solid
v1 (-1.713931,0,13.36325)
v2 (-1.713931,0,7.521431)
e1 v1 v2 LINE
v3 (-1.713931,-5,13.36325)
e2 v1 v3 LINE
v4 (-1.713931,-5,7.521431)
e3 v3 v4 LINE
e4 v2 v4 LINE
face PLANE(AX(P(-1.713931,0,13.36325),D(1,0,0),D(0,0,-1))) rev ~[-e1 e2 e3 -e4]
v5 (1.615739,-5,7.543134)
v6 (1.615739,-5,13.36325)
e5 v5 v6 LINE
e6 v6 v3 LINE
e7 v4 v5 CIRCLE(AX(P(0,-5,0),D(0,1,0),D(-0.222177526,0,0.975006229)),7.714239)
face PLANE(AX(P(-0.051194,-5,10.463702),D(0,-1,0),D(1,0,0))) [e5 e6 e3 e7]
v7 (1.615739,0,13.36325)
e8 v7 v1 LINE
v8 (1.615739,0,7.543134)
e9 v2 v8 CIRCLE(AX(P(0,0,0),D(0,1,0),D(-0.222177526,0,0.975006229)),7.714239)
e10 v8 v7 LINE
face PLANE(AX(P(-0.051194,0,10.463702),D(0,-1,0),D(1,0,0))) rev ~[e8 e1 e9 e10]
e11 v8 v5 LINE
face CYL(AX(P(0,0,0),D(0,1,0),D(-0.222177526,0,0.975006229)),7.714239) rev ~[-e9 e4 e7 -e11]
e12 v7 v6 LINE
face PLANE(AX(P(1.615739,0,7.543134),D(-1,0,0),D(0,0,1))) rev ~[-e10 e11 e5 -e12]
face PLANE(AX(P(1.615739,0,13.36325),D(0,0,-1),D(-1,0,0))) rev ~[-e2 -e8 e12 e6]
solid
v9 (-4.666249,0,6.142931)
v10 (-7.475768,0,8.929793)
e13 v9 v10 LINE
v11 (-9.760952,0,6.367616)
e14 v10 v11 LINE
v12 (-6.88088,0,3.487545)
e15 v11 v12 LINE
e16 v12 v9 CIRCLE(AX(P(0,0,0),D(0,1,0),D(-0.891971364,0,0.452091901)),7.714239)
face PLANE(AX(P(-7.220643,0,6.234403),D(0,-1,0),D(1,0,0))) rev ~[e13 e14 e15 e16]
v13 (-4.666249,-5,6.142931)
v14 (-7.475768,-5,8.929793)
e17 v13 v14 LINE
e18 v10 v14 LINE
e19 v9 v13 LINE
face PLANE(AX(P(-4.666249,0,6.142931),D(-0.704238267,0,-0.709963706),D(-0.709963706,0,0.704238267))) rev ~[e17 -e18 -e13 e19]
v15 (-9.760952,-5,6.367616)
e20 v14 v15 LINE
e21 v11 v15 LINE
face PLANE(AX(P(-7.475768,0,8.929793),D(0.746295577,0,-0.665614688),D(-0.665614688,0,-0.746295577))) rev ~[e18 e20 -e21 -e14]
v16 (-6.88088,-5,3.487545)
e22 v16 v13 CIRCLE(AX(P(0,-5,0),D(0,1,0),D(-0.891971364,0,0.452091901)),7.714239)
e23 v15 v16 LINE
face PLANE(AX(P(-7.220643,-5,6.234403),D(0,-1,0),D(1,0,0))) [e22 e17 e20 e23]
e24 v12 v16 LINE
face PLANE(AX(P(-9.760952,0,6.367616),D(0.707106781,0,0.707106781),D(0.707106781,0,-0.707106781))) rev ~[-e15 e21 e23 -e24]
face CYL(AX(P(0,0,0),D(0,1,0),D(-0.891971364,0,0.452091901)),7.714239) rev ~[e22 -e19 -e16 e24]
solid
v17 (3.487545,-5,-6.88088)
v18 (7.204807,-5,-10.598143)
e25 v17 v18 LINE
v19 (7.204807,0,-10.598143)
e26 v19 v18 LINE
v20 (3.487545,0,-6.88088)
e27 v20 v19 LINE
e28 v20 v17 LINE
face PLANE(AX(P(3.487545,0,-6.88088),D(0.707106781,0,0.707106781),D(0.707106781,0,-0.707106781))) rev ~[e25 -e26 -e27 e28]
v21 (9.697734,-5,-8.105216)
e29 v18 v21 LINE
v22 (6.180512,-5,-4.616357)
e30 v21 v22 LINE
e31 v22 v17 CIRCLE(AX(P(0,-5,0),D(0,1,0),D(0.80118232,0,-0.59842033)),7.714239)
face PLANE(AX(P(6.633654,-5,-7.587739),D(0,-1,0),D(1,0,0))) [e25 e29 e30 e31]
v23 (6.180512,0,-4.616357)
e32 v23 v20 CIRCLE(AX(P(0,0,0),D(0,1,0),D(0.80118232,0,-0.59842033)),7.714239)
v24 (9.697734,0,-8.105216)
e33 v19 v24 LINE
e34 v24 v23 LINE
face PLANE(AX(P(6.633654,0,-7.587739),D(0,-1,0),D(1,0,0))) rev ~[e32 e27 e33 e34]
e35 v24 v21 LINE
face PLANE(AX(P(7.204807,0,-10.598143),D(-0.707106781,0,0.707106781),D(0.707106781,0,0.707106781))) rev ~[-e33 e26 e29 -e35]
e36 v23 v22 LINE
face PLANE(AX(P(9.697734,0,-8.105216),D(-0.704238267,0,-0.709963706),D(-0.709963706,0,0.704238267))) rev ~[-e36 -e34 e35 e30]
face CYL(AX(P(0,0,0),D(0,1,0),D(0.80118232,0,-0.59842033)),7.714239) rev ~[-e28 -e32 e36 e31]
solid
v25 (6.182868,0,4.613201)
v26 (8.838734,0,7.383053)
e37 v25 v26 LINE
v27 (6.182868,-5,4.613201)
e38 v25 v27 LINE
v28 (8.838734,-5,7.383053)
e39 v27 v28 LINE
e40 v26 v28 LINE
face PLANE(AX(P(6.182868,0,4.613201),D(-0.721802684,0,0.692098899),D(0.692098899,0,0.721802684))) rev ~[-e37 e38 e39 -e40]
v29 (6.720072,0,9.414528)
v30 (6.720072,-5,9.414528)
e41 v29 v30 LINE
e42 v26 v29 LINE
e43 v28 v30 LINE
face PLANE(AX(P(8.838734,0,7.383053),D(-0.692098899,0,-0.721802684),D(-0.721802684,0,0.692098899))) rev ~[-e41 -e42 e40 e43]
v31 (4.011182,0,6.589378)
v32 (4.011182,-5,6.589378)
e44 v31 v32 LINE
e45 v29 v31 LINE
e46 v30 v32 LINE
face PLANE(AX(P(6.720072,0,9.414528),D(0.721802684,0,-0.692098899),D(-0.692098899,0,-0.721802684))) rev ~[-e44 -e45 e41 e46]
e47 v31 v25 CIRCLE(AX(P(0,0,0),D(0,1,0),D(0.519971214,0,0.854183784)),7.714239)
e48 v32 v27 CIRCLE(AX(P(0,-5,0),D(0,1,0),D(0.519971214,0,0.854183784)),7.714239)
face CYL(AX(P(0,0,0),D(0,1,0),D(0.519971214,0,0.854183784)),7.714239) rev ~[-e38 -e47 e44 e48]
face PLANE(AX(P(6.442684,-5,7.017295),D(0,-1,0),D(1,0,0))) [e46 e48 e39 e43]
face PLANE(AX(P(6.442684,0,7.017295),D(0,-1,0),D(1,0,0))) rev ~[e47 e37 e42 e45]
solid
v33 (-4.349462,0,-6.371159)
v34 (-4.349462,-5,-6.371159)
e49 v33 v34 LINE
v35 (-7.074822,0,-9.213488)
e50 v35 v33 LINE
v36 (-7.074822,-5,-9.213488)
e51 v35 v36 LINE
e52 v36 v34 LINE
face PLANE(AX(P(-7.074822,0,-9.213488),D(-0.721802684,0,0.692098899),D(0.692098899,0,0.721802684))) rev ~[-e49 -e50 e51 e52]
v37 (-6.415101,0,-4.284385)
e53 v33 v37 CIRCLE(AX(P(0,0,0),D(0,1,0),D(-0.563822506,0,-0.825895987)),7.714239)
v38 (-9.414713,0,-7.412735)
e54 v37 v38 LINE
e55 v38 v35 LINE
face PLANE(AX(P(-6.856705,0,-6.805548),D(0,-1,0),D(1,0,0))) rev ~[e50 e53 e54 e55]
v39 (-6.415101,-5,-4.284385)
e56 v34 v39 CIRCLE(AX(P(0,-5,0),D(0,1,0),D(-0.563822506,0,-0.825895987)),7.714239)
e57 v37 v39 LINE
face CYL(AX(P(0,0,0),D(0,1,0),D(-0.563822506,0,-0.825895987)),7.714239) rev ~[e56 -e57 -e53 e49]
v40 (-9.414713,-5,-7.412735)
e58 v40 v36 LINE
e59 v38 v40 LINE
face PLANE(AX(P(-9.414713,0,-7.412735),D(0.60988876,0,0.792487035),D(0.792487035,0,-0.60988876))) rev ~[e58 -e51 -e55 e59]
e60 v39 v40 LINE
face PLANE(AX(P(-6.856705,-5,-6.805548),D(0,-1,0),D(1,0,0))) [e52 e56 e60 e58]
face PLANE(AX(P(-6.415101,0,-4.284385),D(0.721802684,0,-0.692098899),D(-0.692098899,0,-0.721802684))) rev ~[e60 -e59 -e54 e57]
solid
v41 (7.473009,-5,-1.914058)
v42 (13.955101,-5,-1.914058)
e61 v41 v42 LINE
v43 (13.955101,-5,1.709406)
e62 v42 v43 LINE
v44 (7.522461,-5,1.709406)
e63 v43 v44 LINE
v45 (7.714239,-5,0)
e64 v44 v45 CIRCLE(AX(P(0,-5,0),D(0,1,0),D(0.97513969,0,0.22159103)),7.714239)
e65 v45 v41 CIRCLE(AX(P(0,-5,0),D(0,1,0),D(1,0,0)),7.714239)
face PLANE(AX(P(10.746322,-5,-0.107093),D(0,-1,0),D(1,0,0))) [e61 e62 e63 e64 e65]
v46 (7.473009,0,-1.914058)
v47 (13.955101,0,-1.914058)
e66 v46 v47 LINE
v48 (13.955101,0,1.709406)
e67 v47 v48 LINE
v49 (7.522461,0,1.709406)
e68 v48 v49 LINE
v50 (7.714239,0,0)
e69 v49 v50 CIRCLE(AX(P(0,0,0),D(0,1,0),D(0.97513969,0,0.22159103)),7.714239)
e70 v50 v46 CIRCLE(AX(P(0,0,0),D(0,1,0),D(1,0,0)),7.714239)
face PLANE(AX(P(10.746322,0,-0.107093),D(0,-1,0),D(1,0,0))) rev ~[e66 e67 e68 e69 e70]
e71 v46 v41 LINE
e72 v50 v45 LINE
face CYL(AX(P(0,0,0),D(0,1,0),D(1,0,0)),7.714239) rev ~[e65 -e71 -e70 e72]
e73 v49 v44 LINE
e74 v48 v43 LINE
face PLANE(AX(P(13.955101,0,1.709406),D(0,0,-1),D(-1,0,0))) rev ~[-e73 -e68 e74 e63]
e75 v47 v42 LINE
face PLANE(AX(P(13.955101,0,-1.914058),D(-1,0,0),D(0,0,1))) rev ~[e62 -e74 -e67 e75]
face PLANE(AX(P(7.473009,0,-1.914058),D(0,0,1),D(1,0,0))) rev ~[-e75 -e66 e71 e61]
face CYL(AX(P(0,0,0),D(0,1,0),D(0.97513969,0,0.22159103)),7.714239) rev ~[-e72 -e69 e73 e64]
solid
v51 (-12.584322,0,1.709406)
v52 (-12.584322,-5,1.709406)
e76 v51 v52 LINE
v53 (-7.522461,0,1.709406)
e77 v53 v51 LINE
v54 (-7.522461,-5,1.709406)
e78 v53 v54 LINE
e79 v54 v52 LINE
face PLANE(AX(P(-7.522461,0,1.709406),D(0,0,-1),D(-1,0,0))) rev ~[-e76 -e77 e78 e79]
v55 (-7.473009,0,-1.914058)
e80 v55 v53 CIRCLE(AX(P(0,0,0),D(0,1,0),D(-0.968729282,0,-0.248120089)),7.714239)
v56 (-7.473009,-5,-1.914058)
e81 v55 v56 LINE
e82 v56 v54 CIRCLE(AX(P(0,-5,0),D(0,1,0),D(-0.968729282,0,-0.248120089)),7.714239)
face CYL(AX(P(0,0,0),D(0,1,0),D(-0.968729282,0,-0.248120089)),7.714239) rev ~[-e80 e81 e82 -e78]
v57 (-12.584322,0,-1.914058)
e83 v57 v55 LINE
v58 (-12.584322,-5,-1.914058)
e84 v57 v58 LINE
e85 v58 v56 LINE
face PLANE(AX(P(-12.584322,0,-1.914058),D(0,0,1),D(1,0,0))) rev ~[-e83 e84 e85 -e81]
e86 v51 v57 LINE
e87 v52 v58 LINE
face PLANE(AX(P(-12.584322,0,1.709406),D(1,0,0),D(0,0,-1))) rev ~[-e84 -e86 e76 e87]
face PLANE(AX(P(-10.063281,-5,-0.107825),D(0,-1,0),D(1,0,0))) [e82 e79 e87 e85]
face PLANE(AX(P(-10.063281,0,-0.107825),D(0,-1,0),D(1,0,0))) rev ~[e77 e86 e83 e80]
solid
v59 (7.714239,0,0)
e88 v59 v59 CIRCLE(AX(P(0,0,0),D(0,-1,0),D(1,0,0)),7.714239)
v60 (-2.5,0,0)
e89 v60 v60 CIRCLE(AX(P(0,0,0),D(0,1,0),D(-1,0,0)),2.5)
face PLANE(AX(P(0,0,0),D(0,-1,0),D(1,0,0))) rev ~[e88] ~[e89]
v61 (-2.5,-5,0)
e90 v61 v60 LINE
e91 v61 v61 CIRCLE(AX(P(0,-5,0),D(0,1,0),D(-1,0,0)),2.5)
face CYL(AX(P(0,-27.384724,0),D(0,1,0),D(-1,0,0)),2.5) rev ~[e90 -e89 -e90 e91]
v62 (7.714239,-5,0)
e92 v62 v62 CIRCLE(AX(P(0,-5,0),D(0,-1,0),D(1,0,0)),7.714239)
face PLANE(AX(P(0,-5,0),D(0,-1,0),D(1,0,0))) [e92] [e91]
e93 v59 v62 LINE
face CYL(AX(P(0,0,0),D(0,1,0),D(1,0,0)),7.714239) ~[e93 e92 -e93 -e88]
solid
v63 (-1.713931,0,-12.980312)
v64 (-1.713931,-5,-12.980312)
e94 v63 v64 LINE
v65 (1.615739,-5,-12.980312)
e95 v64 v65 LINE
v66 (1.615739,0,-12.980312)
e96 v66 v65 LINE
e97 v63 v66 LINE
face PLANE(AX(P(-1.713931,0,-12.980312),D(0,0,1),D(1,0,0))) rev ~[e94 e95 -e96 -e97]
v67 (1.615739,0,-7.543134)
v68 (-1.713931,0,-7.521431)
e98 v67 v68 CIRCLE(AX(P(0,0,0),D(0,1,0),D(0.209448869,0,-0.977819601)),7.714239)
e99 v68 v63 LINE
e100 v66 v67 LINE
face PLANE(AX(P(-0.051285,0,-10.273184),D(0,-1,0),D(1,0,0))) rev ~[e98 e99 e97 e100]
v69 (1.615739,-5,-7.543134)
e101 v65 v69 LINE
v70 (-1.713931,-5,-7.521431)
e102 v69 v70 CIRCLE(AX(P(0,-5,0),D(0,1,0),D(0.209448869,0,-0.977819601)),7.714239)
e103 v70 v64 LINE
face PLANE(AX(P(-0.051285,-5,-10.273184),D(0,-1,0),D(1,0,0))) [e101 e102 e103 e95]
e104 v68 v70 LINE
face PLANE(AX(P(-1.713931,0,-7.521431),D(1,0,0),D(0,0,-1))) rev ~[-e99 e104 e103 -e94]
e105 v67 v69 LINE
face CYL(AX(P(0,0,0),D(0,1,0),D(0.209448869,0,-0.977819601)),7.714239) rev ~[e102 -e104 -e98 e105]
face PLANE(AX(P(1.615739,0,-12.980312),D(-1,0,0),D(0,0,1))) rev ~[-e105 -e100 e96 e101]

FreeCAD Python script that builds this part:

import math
import FreeCAD as App
import Part
import Sketcher
Q = App.Units.Quantity

doc = App.newDocument("Part")
body = doc.addObject("PartDesign::Body", "Body")

# Sketch on XZ plane
sketch1 = body.newObject("Sketcher::SketchObject", "Sketch")
sketch1.AttachmentSupport = (doc.getObject("XZ_Plane"), [""])
sketch1.MapMode = "FlatFace"
sketch1.addGeometry(Part.Circle(App.Vector(0, 0, 0), App.Vector(0, 0, 1), 8), False)
sketch1.addConstraint([
    Sketcher.Constraint("Coincident", 0, 3, -1, 1),
    Sketcher.Constraint("Diameter", 0, 15.428478),
])
pad1 = body.newObject("PartDesign::Pad", "Pad")
pad1.Profile = sketch1
pad1.Length = 5

# Sketch on XZ plane
sketch2 = body.newObject("Sketcher::SketchObject", "Sketch001")
sketch2.AttachmentSupport = (doc.getObject("XZ_Plane"), [""])
sketch2.MapMode = "FlatFace"
sketch2.AttachmentOffset = App.Placement(App.Vector(0, 0, 5), App.Rotation())
sketch2.addGeometry(Part.Circle(App.Vector(0, 0, 0), App.Vector(0, 0, 1), 2.5), False)
sketch2.addConstraint([
    Sketcher.Constraint("Coincident", 0, 3, -1, 1),
    Sketcher.Constraint("Diameter", 0, 5.0),
])
doc.recompute()
hole = body.newObject("PartDesign::Hole", "Hole")
hole.Profile = sketch2
hole.ThreadType = "None"
hole.Diameter = 5
hole.DepthType = "ThroughAll"
body2 = doc.addObject("PartDesign::Body", "Body001")

# Sketch on XZ plane
sketch3 = body2.newObject("Sketcher::SketchObject", "Sketch002")
sketch3.AttachmentSupport = (doc.getObject("XZ_Plane001"), [""])
sketch3.MapMode = "FlatFace"
sketch3.addGeometry([
    Part.LineSegment(App.Vector(-6.4, -4.3, 0), App.Vector(-9.4, -7.4, 0)),
    Part.LineSegment(App.Vector(-9.4, -7.4, 0), App.Vector(-7.1, -9.2, 0)),
    Part.LineSegment(App.Vector(-7.1, -9.2, 0), App.Vector(-4.3, -6.4, 0)),
    Part.ArcOfCircle(Part.Circle(App.Vector(0, 0, 0), App.Vector(0, 0, 1), 7.7), math.radians(-146), math.radians(-124)),
], False)
sketch3.addConstraint([
    Sketcher.Constraint("Coincident", 0, 2, 1, 1),
    Sketcher.Constraint("Coincident", 1, 2, 2, 1),
    Sketcher.Constraint("Coincident", 2, 2, 3, 2),
    Sketcher.Constraint("Coincident", 3, 1, 0, 1),
    Sketcher.Constraint("Coincident", 3, 3, -1, 1),
    Sketcher.Constraint("Parallel", 0, 2),
    Sketcher.Constraint("Radius", 3, 7.714239),
    Sketcher.Constraint("DistanceX", 3, 1, -1, 1, 6.415101),
    Sketcher.Constraint("Distance", 0, 4.334079),
    Sketcher.Constraint("Distance", 1, 2.952592),
    Sketcher.Constraint("Distance", 2, 3.93782),
    Sketcher.Constraint("DistanceX", 2, 2, -1, 1, 4.349462),
])
pad2 = body2.newObject("PartDesign::Pad", "Pad001")
pad2.Profile = sketch3
pad2.Length = 5
body3 = doc.addObject("PartDesign::Body", "Body002")

# Sketch on XZ plane
sketch4 = body3.newObject("Sketcher::SketchObject", "Sketch003")
sketch4.AttachmentSupport = (doc.getObject("XZ_Plane002"), [""])
sketch4.MapMode = "FlatFace"
sketch4.addGeometry([
    Part.LineSegment(App.Vector(6.7, 9.4, 0), App.Vector(4, 6.6, 0)),
    Part.ArcOfCircle(Part.Circle(App.Vector(0, 0, 0), App.Vector(0, 0, 1), 7.7), math.radians(37), math.radians(59)),
    Part.LineSegment(App.Vector(6.2, 4.6, 0), App.Vector(8.8, 7.4, 0)),
    Part.LineSegment(App.Vector(8.8, 7.4, 0), App.Vector(6.7, 9.4, 0)),
], False)
sketch4.addConstraint([
    Sketcher.Constraint("Coincident", 0, 2, 1, 2),
    Sketcher.Constraint("Coincident", 1, 1, 2, 1),
    Sketcher.Constraint("Coincident", 2, 2, 3, 1),
    Sketcher.Constraint("Coincident", 3, 2, 0, 1),
    Sketcher.Constraint("Coincident", 1, 3, -1, 1),
    Sketcher.Constraint("Parallel", 0, 2),
    Sketcher.Constraint("Perpendicular", 2, 3),
    Sketcher.Constraint("Radius", 1, 7.714239),
    Sketcher.Constraint("DistanceY", -1, 1, 1, 1, 4.613201),
    Sketcher.Constraint("Distance", 0, 3.914021),
    Sketcher.Constraint("Distance", 2, 3.837409),
    Sketcher.Constraint("Distance", 3, 2.935238),
])
pad3 = body3.newObject("PartDesign::Pad", "Pad002")
pad3.Profile = sketch4
pad3.Length = 5
body4 = doc.addObject("PartDesign::Body", "Body003")

# Sketch on XZ plane
sketch5 = body4.newObject("Sketcher::SketchObject", "Sketch004")
sketch5.AttachmentSupport = (doc.getObject("XZ_Plane003"), [""])
sketch5.MapMode = "FlatFace"
sketch5.addGeometry([
    Part.LineSegment(App.Vector(-7.5, 1.7, 0), App.Vector(-12.6, 1.7, 0)),
    Part.LineSegment(App.Vector(-12.6, 1.7, 0), App.Vector(-12.6, -1.9, 0)),
    Part.LineSegment(App.Vector(-12.6, -1.9, 0), App.Vector(-7.5, -1.9, 0)),
    Part.ArcOfCircle(Part.Circle(App.Vector(0, 0, 0), App.Vector(0, 0, 1), 7.7), math.radians(167), math.radians(194)),
], False)
sketch5.addConstraint([
    Sketcher.Constraint("Coincident", 0, 2, 1, 1),
    Sketcher.Constraint("Coincident", 1, 2, 2, 1),
    Sketcher.Constraint("Coincident", 2, 2, 3, 2),
    Sketcher.Constraint("Coincident", 3, 1, 0, 1),
    Sketcher.Constraint("Horizontal", 0),
    Sketcher.Constraint("Vertical", 1),
    Sketcher.Constraint("Horizontal", 2),
    Sketcher.Constraint("Coincident", 3, 3, -1, 1),
    Sketcher.Constraint("Radius", 3, 7.714239),
    Sketcher.Constraint("DistanceX", 0, 2, 0, 1, 5.061862),
    Sketcher.Constraint("DistanceX", 2, 1, 2, 2, 5.111313),
    Sketcher.Constraint("DistanceY", 1, 2, 1, 1, 3.623464),
])
pad4 = body4.newObject("PartDesign::Pad", "Pad003")
pad4.Profile = sketch5
pad4.Length = 5
body5 = doc.addObject("PartDesign::Body", "Body004")

# Sketch on XZ plane
sketch6 = body5.newObject("Sketcher::SketchObject", "Sketch005")
sketch6.AttachmentSupport = (doc.getObject("XZ_Plane004"), [""])
sketch6.MapMode = "FlatFace"
sketch6.addGeometry([
    Part.LineSegment(App.Vector(14, 1.7, 0), App.Vector(7.5, 1.7, 0)),  # 0
    Part.ArcOfCircle(Part.Circle(App.Vector(0, 0, 0), App.Vector(0, 0, 1), 7.7), math.radians(0), math.radians(12.8)),  # 1
    Part.ArcOfCircle(Part.Circle(App.Vector(0, 0, 0), App.Vector(0, 0, 1), 7.7), math.radians(-14.37), math.radians(0)),  # 2
    Part.LineSegment(App.Vector(7.5, -1.9, 0), App.Vector(14, -1.9, 0)),  # 3
    Part.LineSegment(App.Vector(14, -1.9, 0), App.Vector(14, 1.7, 0)),  # 4
], False)
sketch6.addConstraint([
    Sketcher.Constraint("Coincident", 0, 2, 1, 2),
    Sketcher.Constraint("Tangent", 1, 1, 2, 2),
    Sketcher.Constraint("Coincident", 2, 1, 3, 1),
    Sketcher.Constraint("Coincident", 3, 2, 4, 1),
    Sketcher.Constraint("Coincident", 4, 2, 0, 1),
    Sketcher.Constraint("Horizontal", 0),
    Sketcher.Constraint("Horizontal", 3),
    Sketcher.Constraint("Vertical", 4),
    Sketcher.Constraint("Coincident", 1, 3, -1, 1),
    Sketcher.Constraint("Equal", 1, 2),
    Sketcher.Constraint("PointOnObject", 1, 1, -1),
    Sketcher.Constraint("Radius", 1, 7.714239),
    Sketcher.Constraint("DistanceX", 0, 2, 0, 1, 6.432641),
    Sketcher.Constraint("DistanceX", -1, 1, 3, 2, 13.955101),
    Sketcher.Constraint("DistanceX", 3, 1, 3, 2, 6.482092),
])
pad5 = body5.newObject("PartDesign::Pad", "Pad004")
pad5.Profile = sketch6
pad5.Length = 5
body6 = doc.addObject("PartDesign::Body", "Body005")

# Sketch on XZ plane
sketch7 = body6.newObject("Sketcher::SketchObject", "Sketch006")
sketch7.AttachmentSupport = (doc.getObject("XZ_Plane005"), [""])
sketch7.MapMode = "FlatFace"
sketch7.addGeometry([
    Part.LineSegment(App.Vector(-7.5, 8.9, 0), App.Vector(-9.8, 6.4, 0)),
    Part.LineSegment(App.Vector(-9.8, 6.4, 0), App.Vector(-6.9, 3.5, 0)),
    Part.ArcOfCircle(Part.Circle(App.Vector(0, 0, 0), App.Vector(0, 0, 1), 7.7), math.radians(127), math.radians(153)),
    Part.LineSegment(App.Vector(-4.7, 6.1, 0), App.Vector(-7.5, 8.9, 0)),
], False)
sketch7.addConstraint([
    Sketcher.Constraint("Coincident", 0, 2, 1, 1),
    Sketcher.Constraint("Coincident", 1, 2, 2, 2),
    Sketcher.Constraint("Coincident", 2, 1, 3, 1),
    Sketcher.Constraint("Coincident", 3, 2, 0, 1),
    Sketcher.Constraint("Coincident", 2, 3, -1, 1),
    Sketcher.Constraint("Angle", 1, Q("-45 deg")),
    Sketcher.Constraint("Radius", 2, 7.714239),
    Sketcher.Constraint("Distance", 3, 3.957271),
    Sketcher.Constraint("DistanceX", 0, 2, -1, 1, 9.760952),
    Sketcher.Constraint("DistanceX", 1, 2, -1, 1, 6.88088),
    Sketcher.Constraint("DistanceX", 2, 1, -1, 1, 4.666249),
    Sketcher.Constraint("DistanceX", 3, 2, -1, 1, 7.475768),
])
pad6 = body6.newObject("PartDesign::Pad", "Pad005")
pad6.Profile = sketch7
pad6.Length = 5
body7 = doc.addObject("PartDesign::Body", "Body006")

# Sketch on XZ plane
sketch8 = body7.newObject("Sketcher::SketchObject", "Sketch007")
sketch8.AttachmentSupport = (doc.getObject("XZ_Plane006"), [""])
sketch8.MapMode = "FlatFace"
sketch8.addGeometry([
    Part.ArcOfCircle(Part.Circle(App.Vector(0, 0, 0), App.Vector(0, 0, 1), 7.7), math.radians(-63), math.radians(-37)),
    Part.LineSegment(App.Vector(3.5, -6.9, 0), App.Vector(7.2, -10.6, 0)),
    Part.LineSegment(App.Vector(7.2, -10.6, 0), App.Vector(9.7, -8.1, 0)),
    Part.LineSegment(App.Vector(9.7, -8.1, 0), App.Vector(6.2, -4.6, 0)),
], False)
sketch8.addConstraint([
    Sketcher.Constraint("Coincident", 0, 1, 1, 1),
    Sketcher.Constraint("Coincident", 1, 2, 2, 1),
    Sketcher.Constraint("Coincident", 2, 2, 3, 1),
    Sketcher.Constraint("Coincident", 3, 2, 0, 2),
    Sketcher.Constraint("Coincident", 0, 3, -1, 1),
    Sketcher.Constraint("Perpendicular", 1, 2),
    Sketcher.Constraint("Angle", 1, Q("-45 deg")),
    Sketcher.Constraint("Radius", 0, 7.714239),
    Sketcher.Constraint("Distance", 2, 3.525531),
    Sketcher.Constraint("DistanceY", 0, 1, -1, 1, 6.88088),
    Sketcher.Constraint("DistanceX", -1, 1, 3, 2, 6.180512),
    Sketcher.Constraint("DistanceX", 0, 1, 2, 2, 6.210189),
])
pad7 = body7.newObject("PartDesign::Pad", "Pad006")
pad7.Profile = sketch8
pad7.Length = 5
body8 = doc.addObject("PartDesign::Body", "Body007")

# Sketch on XZ plane
sketch9 = body8.newObject("Sketcher::SketchObject", "Sketch008")
sketch9.AttachmentSupport = (doc.getObject("XZ_Plane007"), [""])
sketch9.MapMode = "FlatFace"
sketch9.addGeometry([
    Part.LineSegment(App.Vector(1.6, 13.4, 0), App.Vector(-1.7, 13.4, 0)),
    Part.LineSegment(App.Vector(-1.7, 13.4, 0), App.Vector(-1.7, 7.5, 0)),
    Part.ArcOfCircle(Part.Circle(App.Vector(0, 0, 0), App.Vector(0, 0, 1), 7.7), math.radians(78), math.radians(103)),
    Part.LineSegment(App.Vector(1.6, 7.5, 0), App.Vector(1.6, 13.4, 0)),
], False)
sketch9.addConstraint([
    Sketcher.Constraint("Coincident", 0, 2, 1, 1),
    Sketcher.Constraint("Coincident", 1, 2, 2, 2),
    Sketcher.Constraint("Coincident", 2, 1, 3, 1),
    Sketcher.Constraint("Coincident", 3, 2, 0, 1),
    Sketcher.Constraint("Horizontal", 0),
    Sketcher.Constraint("Vertical", 1),
    Sketcher.Constraint("Vertical", 3),
    Sketcher.Constraint("Coincident", 2, 3, -1, 1),
    Sketcher.Constraint("Radius", 2, 7.714239),
    Sketcher.Constraint("DistanceX", 0, 2, 0, 1, 3.329669),
    Sketcher.Constraint("DistanceY", 1, 2, 1, 1, 5.841819),
    Sketcher.Constraint("DistanceY", 3, 1, 3, 2, 5.820116),
])
pad8 = body8.newObject("PartDesign::Pad", "Pad007")
pad8.Profile = sketch9
pad8.Length = 5
body9 = doc.addObject("PartDesign::Body", "Body008")

# Sketch on XZ plane
sketch10 = body9.newObject("Sketcher::SketchObject", "Sketch009")
sketch10.AttachmentSupport = (doc.getObject("XZ_Plane008"), [""])
sketch10.MapMode = "FlatFace"
sketch10.addGeometry([
    Part.ArcOfCircle(Part.Circle(App.Vector(0, 0, 0), App.Vector(0, 0, 1), 7.7), math.radians(-103), math.radians(-78)),
    Part.LineSegment(App.Vector(-1.7, -7.5, 0), App.Vector(-1.7, -13, 0)),
    Part.LineSegment(App.Vector(-1.7, -13, 0), App.Vector(1.6, -13, 0)),
    Part.LineSegment(App.Vector(1.6, -13, 0), App.Vector(1.6, -7.5, 0)),
], False)
sketch10.addConstraint([
    Sketcher.Constraint("Coincident", 0, 1, 1, 1),
    Sketcher.Constraint("Coincident", 1, 2, 2, 1),
    Sketcher.Constraint("Coincident", 2, 2, 3, 1),
    Sketcher.Constraint("Coincident", 3, 2, 0, 2),
    Sketcher.Constraint("Vertical", 1),
    Sketcher.Constraint("Horizontal", 2),
    Sketcher.Constraint("Vertical", 3),
    Sketcher.Constraint("Coincident", 0, 3, -1, 1),
    Sketcher.Constraint("Radius", 0, 7.714239),
    Sketcher.Constraint("DistanceX", 2, 1, 2, 2, 3.329669),
    Sketcher.Constraint("DistanceY", 1, 2, 1, 1, 5.458881),
    Sketcher.Constraint("DistanceY", 3, 1, 3, 2, 5.437178),
])
pad9 = body9.newObject("PartDesign::Pad", "Pad008")
pad9.Profile = sketch10
pad9.Length = 5

doc.recompute()
